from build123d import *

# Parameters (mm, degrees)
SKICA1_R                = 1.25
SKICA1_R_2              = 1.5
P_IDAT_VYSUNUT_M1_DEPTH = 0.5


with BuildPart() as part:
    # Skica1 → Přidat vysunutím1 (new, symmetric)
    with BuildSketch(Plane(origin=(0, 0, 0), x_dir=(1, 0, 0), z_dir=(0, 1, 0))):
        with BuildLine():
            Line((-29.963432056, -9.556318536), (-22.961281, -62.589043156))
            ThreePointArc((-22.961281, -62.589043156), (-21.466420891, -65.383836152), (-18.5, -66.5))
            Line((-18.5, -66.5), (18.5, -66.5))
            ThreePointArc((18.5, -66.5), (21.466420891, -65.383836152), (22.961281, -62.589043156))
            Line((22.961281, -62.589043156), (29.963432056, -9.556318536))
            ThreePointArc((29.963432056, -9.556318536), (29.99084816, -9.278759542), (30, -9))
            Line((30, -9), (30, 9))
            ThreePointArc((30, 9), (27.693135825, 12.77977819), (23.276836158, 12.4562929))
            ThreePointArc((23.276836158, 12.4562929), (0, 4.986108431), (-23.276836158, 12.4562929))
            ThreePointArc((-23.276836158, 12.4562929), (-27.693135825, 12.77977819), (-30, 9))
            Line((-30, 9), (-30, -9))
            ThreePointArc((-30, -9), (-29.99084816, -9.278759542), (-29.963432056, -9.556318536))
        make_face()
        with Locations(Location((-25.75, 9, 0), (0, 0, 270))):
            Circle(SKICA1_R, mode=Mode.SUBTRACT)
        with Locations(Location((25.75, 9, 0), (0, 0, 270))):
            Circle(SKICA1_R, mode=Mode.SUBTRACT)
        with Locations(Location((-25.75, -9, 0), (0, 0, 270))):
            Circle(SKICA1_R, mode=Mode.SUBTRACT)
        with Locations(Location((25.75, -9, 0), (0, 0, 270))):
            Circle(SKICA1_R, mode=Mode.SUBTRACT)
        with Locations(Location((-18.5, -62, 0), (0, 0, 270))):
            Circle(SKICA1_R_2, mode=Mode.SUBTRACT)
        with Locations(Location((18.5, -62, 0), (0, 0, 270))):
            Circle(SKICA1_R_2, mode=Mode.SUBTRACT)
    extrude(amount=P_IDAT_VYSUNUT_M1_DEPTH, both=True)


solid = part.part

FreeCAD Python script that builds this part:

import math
import FreeCAD as App
import Part
import Sketcher

V = App.Vector
Q = App.Units.Quantity

doc = App.newDocument("Part")
params = doc.addObject("Spreadsheet::Sheet", "Params")
for row, (alias, value) in enumerate([
    ("sketch1_diameter", "3 mm"),
    ("sketch1_radius", "40 mm"),
    ("sketch1_diameter2", "2.5 mm"),
    ("sketch1_radius2", "4.5 mm"),
    ("sketch1_width", "37 mm"),
    ("pad1_length", "1 mm"),
], start=1):
    params.set(f"A{row}", alias)
    params.set(f"B{row}", "=" + value)
    params.setAlias(f"B{row}", alias)

body = doc.addObject("PartDesign::Body", "Body")

sketch1 = body.newObject("Sketcher::SketchObject", "Sketch")
sketch1.AttachmentSupport = (doc.getObject("XZ_Plane"), [""])
sketch1.MapMode = "FlatFace"
sketch1.addGeometry([
    Part.LineSegment(V(-30, 9.6, 0), V(-23, 62.6, 0)),
    Part.ArcOfCircle(Part.Circle(V(-18.5, 62, 0), V(0, 0, 1), 4.5), math.radians(90), math.radians(172)),
    Part.LineSegment(V(-18.5, 66.5, 0), V(18.5, 66.5, 0)),
    Part.ArcOfCircle(Part.Circle(V(18.5, 62, 0), V(0, 0, 1), 4.5), math.radians(8), math.radians(90)),
    Part.LineSegment(V(23, 62.6, 0), V(30, 9.6, 0)),
    Part.ArcOfCircle(Part.Circle(V(25.7, 9, 0), V(0, 0, 1), 4.3), math.radians(0), math.radians(7.52)),
    Part.LineSegment(V(30, 9, 0), V(30, -9, 0)),
    Part.ArcOfCircle(Part.Circle(V(25.8, -9, 0), V(0, 0, 1), 4.2), math.radians(-126), math.radians(0)),
    Part.ArcOfCircle(Part.Circle(V(0, -45, 0), V(0, 0, 1), 40), math.radians(54), math.radians(126)),
    Part.ArcOfCircle(Part.Circle(V(-25.8, -9, 0), V(0, 0, 1), 4.2), math.radians(180), math.radians(306)),
    Part.LineSegment(V(-30, -9, 0), V(-30, 9, 0)),
    Part.ArcOfCircle(Part.Circle(V(-25.7, 9, 0), V(0, 0, 1), 4.3), math.radians(172.48), math.radians(180)),
    Part.Circle(V(-18.5, 62, 0), V(0, 0, 1), 1.5),
    Part.Circle(V(18.5, 62, 0), V(0, 0, 1), 1.5),
    Part.Circle(V(-25.8, 9, 0), V(0, 0, 1), 1.2),
    Part.Circle(V(-25.8, -9, 0), V(0, 0, 1), 1.2),
    Part.Circle(V(25.8, 9, 0), V(0, 0, 1), 1.2),
    Part.Circle(V(25.8, -9, 0), V(0, 0, 1), 1.2),
], False)
sketch1.addConstraint([
    Sketcher.Constraint("Tangent", 0, 2, 1, 2),
    Sketcher.Constraint("Tangent", 1, 1, 2, 1),
    Sketcher.Constraint("Tangent", 2, 2, 3, 2),
    Sketcher.Constraint("Tangent", 3, 1, 4, 1),
    Sketcher.Constraint("Tangent", 4, 2, 5, 2),
    Sketcher.Constraint("Tangent", 5, 1, 6, 1),
    Sketcher.Constraint("Tangent", 6, 2, 7, 2),
    Sketcher.Constraint("Tangent", 7, 1, 8, 1),
    Sketcher.Constraint("Tangent", 8, 2, 9, 2),
    Sketcher.Constraint("Tangent", 9, 1, 10, 1),
    Sketcher.Constraint("Tangent", 10, 2, 11, 2),
    Sketcher.Constraint("Tangent", 11, 1, 0, 1),
    Sketcher.Constraint("Horizontal", 2),
    Sketcher.Constraint("Vertical", 6),
    Sketcher.Constraint("Vertical", 10),
    Sketcher.Constraint("Coincident", 12, 3, 1, 3),
    Sketcher.Constraint("Coincident", 13, 3, 3, 3),
    Sketcher.Constraint("Coincident", 14, 3, 11, 3),
    Sketcher.Constraint("Coincident", 15, 3, 9, 3),
    Sketcher.Constraint("Coincident", 16, 3, 5, 3),
    Sketcher.Constraint("Coincident", 17, 3, 7, 3),
    Sketcher.Constraint("Equal", 1, 3),
    Sketcher.Constraint("Equal", 5, 7),
    Sketcher.Constraint("Equal", 7, 9),
    Sketcher.Constraint("Equal", 9, 11),
    Sketcher.Constraint("Equal", 12, 13),
    Sketcher.Constraint("Equal", 14, 15),
    Sketcher.Constraint("Equal", 15, 16),
    Sketcher.Constraint("Equal", 16, 17),
    Sketcher.Constraint("Symmetric", 5, 3, 9, 3, -1, 1),
    Sketcher.Constraint("Symmetric", 4, 2, 11, 1, -2),
    Sketcher.Constraint("PointOnObject", 8, 3, -2),
    Sketcher.Constraint("Diameter", 12, Q("3 mm")),
    Sketcher.Constraint("Radius", 8, Q("40 mm")),
    Sketcher.Constraint("Diameter", 14, Q("2.5 mm")),
    Sketcher.Constraint("Radius", 1, Q("4.5 mm")),
    Sketcher.Constraint("DistanceX", 2, 1, 2, 2, Q("37 mm")),
    Sketcher.Constraint("DistanceY", 6, 2, 6, 1, Q("18 mm")),
    Sketcher.Constraint("Radius", 5, Q("4.25 mm")),
    Sketcher.Constraint("DistanceY", -1, 1, 1, 3, Q("62 mm")),
    Sketcher.Constraint("DistanceX", -1, 1, 5, 1, Q("30 mm")),
])
sketch1.setExpression("Constraints[32]", "Params.sketch1_diameter")
sketch1.setExpression("Constraints[33]", "Params.sketch1_radius")
sketch1.setExpression("Constraints[34]", "Params.sketch1_diameter2")
sketch1.setExpression("Constraints[35]", "Params.sketch1_radius2")
sketch1.setExpression("Constraints[36]", "Params.sketch1_width")
pad1 = body.newObject("PartDesign::Pad", "Pad")
pad1.Profile = sketch1
pad1.setExpression("Length", "Params.pad1_length")
pad1.Midplane = True

doc.recompute()
